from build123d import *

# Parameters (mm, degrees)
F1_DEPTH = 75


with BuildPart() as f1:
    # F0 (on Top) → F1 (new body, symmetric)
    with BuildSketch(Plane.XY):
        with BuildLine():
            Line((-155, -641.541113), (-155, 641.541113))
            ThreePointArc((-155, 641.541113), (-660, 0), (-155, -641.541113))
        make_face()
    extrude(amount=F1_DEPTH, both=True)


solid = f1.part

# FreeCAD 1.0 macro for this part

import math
import FreeCAD as App
import Part
import Sketcher

V = App.Vector

doc = App.newDocument("Part")
body = doc.addObject("PartDesign::Body", "Body")

sketch1 = body.newObject("Sketcher::SketchObject", "Sketch")
sketch1.AttachmentSupport = (doc.getObject("XY_Plane"), [""])
sketch1.MapMode = "FlatFace"
sketch1.addGeometry(Part.LineSegment(V(-155, -641.541113, 0), V(-155, 641.541113, 0)), False)
sketch1.addGeometry(Part.ArcOfCircle(Part.Circle(V(0, 0, 0), V(0, 0, 1), 660), math.radians(103.582692), math.radians(256.417308)), False)
sketch1.addConstraint(Sketcher.Constraint("Coincident", 0, 1, 1, 2))
sketch1.addConstraint(Sketcher.Constraint("Coincident", 1, 1, 0, 2))
sketch1.addConstraint(Sketcher.Constraint("Vertical", 0))
sketch1.addConstraint(Sketcher.Constraint("Coincident", 1, 3, -1, 1))
sketch1.addConstraint(Sketcher.Constraint("Radius", 1, 660.0))
sketch1.addConstraint(Sketcher.Constraint("DistanceX", 0, 1, -1, 1, 155.0))
pad1 = body.newObject("PartDesign::Pad", "Pad")
pad1.Profile = sketch1
pad1.Length = 150
pad1.Midplane = True

doc.recompute()
